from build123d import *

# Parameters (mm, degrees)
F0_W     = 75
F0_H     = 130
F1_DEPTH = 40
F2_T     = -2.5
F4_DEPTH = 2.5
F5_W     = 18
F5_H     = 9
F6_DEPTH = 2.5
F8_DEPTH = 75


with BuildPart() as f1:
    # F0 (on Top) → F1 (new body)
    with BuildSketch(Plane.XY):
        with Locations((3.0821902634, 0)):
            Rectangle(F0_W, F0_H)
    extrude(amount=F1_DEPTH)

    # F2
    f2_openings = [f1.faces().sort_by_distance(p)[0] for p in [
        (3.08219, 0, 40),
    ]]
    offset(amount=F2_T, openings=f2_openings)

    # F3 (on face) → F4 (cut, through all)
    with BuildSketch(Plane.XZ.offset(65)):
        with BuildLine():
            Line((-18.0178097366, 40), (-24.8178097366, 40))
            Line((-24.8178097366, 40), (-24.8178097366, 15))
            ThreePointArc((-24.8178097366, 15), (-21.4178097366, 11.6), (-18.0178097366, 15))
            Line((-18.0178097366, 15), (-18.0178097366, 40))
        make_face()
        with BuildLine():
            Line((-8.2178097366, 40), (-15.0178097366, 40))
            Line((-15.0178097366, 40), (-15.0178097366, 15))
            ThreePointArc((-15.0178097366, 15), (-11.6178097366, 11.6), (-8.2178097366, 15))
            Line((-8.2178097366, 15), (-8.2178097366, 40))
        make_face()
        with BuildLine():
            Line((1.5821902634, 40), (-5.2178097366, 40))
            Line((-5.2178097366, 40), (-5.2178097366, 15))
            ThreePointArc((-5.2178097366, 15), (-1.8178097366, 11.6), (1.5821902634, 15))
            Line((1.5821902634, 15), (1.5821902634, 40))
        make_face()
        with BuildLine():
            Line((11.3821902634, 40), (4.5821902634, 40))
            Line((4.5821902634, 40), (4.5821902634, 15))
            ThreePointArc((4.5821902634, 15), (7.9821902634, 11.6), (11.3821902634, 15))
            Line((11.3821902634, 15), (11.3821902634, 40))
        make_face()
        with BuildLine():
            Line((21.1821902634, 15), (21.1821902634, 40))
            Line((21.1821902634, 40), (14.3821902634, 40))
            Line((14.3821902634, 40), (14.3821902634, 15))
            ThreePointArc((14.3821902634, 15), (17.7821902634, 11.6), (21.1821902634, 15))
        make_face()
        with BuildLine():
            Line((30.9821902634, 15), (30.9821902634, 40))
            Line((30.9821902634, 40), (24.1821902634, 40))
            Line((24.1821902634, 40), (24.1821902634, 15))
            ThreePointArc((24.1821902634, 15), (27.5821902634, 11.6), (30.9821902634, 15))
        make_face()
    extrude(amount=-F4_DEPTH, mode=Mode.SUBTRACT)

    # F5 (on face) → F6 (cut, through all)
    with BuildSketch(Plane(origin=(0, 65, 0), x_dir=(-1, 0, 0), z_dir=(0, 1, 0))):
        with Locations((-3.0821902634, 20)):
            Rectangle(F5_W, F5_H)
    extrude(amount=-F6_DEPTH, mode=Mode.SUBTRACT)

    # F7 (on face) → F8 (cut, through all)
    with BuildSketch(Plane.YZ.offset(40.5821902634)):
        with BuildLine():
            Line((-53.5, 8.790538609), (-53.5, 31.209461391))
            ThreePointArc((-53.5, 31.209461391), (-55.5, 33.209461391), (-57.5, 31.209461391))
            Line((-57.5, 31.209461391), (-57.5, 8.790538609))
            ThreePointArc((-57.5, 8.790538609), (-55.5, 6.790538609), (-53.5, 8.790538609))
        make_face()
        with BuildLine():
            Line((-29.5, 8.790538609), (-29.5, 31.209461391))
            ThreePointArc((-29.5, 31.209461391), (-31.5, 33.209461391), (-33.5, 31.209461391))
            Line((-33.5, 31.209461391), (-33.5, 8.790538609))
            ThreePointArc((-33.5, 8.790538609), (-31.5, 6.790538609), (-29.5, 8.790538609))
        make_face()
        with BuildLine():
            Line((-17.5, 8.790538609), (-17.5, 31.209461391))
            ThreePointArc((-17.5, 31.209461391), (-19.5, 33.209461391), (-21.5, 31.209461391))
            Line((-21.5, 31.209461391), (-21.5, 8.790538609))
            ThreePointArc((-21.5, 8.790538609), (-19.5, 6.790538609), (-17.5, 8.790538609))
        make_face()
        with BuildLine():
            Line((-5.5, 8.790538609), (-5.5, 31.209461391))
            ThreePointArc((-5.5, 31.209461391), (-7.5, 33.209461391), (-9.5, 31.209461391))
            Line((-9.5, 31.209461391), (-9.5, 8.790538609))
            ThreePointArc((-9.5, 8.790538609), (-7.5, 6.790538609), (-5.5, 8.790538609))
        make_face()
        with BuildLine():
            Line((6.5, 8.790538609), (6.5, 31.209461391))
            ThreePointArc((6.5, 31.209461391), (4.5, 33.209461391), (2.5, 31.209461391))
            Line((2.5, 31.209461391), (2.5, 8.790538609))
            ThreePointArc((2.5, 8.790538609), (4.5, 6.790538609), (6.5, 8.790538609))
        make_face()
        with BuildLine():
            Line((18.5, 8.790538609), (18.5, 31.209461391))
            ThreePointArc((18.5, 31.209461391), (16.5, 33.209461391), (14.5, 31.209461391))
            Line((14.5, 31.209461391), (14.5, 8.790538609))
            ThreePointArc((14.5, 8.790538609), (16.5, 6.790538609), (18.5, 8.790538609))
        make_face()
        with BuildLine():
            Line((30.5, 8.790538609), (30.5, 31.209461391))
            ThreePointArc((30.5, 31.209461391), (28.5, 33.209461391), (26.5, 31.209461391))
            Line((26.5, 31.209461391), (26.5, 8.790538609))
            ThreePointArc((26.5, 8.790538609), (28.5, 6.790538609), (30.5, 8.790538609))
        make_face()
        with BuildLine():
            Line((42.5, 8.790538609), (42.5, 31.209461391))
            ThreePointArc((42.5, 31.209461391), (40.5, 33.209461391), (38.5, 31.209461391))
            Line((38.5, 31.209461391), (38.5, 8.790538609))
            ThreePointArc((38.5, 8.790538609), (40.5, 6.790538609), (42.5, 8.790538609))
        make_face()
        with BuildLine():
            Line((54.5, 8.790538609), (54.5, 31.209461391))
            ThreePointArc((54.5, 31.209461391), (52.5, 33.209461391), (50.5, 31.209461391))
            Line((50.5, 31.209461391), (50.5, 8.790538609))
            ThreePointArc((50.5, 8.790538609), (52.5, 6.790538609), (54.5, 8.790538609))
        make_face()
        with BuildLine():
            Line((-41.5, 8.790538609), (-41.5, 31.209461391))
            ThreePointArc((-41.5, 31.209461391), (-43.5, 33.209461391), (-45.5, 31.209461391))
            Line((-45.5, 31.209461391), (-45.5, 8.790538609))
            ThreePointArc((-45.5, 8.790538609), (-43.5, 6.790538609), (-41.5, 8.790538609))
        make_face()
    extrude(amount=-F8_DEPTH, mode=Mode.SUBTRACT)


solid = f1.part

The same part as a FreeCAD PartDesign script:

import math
import FreeCAD as App
import Part
import Sketcher

V = App.Vector
Q = App.Units.Quantity


def faces_at(feature, points):
    """Names of the faces that lie closest to the given points."""
    faces = feature.Shape.Faces
    near = lambda p: min(range(len(faces)), key=lambda i: faces[i].distToShape(Part.Vertex(*p))[0])
    return sorted({f"Face{near(p) + 1}" for p in points})


def add_polygon(sketch, points):
    """Adds a closed chain of lines whose ends are joined by coincident constraints."""
    first, n = sketch.GeometryCount, len(points)
    for a, b in zip(points, points[1:] + points[:1]):
        sketch.addGeometry(Part.LineSegment(App.Vector(*a, 0), App.Vector(*b, 0)), False)
    for i in range(n):
        sketch.addConstraint(Sketcher.Constraint("Coincident", first + i, 2, first + (i + 1) % n, 1))

doc = App.newDocument("Part")
body = doc.addObject("PartDesign::Body", "Body")

# Sketch on XY plane
sketch1 = doc.addObject("Sketcher::SketchObject", "Sketch")
body.addObject(sketch1)
sketch1.AttachmentSupport = (doc.XY_Plane, [""])
sketch1.MapMode = "FlatFace"
add_polygon(sketch1, [(-34, 65), (-34, -65), (41, -65), (41, 65)])  # lines 0-3
sketch1.addConstraint([
    Sketcher.Constraint("Vertical", 0),
    Sketcher.Constraint("Horizontal", 1),
    Sketcher.Constraint("Vertical", 2),
    Sketcher.Constraint("Horizontal", 3),
    Sketcher.Constraint("DistanceX", 1, 1, 1, 2, Q("75 mm")),
    Sketcher.Constraint("DistanceY", 0, 2, 0, 1, Q("130 mm")),
    Sketcher.Constraint("DistanceY", 0, 2, -1, 1, Q("65 mm")),
    Sketcher.Constraint("DistanceX", 0, 2, -1, 1, Q("34.41781 mm")),
])
pad1 = doc.addObject("PartDesign::Pad", "Pad")
body.addObject(pad1)
pad1.Profile = sketch1
pad1.Length = 40
doc.recompute()

thickness = doc.addObject("PartDesign::Thickness", "Thickness")
body.addObject(thickness)
thickness.Base = (pad1, faces_at(pad1, [(3.082, 0, 40)]))
thickness.Value = 2.5
thickness.Reversed = True
thickness.Join = "Arc"

# Sketch on XZ plane
sketch2 = doc.addObject("Sketcher::SketchObject", "Sketch001")
body.addObject(sketch2)
sketch2.AttachmentSupport = (doc.XZ_Plane, [""])
sketch2.MapMode = "FlatFace"
sketch2.AttachmentOffset = App.Placement(V(0, 0, 65), App.Rotation())
sketch2.addGeometry([
    Part.LineSegment(V(-18, 40, 0), V(-24.8, 40, 0)),  # 0
    Part.LineSegment(V(-24.8, 40, 0), V(-24.8, 15, 0)),  # 1
    Part.ArcOfCircle(Part.Circle(V(-21.4, 15, 0), V(0, 0, 1), 3.4), math.radians(180), math.radians(360)),  # 2
    Part.LineSegment(V(-18, 15, 0), V(-18, 40, 0)),  # 3
    Part.LineSegment(V(-8.2, 40, 0), V(-15, 40, 0)),  # 4
    Part.LineSegment(V(-15, 40, 0), V(-15, 15, 0)),  # 5
    Part.ArcOfCircle(Part.Circle(V(-11.6, 15, 0), V(0, 0, 1), 3.4), math.radians(180), math.radians(360)),  # 6
    Part.LineSegment(V(-8.2, 15, 0), V(-8.2, 40, 0)),  # 7
    Part.LineSegment(V(1.6, 40, 0), V(-5.2, 40, 0)),  # 8
    Part.LineSegment(V(-5.2, 40, 0), V(-5.2, 15, 0)),  # 9
    Part.ArcOfCircle(Part.Circle(V(-1.8, 15, 0), V(0, 0, 1), 3.4), math.radians(180), math.radians(360)),  # 10
    Part.LineSegment(V(1.6, 15, 0), V(1.6, 40, 0)),  # 11
    Part.LineSegment(V(11.4, 40, 0), V(4.6, 40, 0)),  # 12
    Part.LineSegment(V(4.6, 40, 0), V(4.6, 15, 0)),  # 13
    Part.ArcOfCircle(Part.Circle(V(8, 15, 0), V(0, 0, 1), 3.4), math.radians(180), math.radians(360)),  # 14
    Part.LineSegment(V(11.4, 15, 0), V(11.4, 40, 0)),  # 15
    Part.LineSegment(V(21.2, 15, 0), V(21.2, 40, 0)),  # 16
    Part.LineSegment(V(21.2, 40, 0), V(14.4, 40, 0)),  # 17
    Part.LineSegment(V(14.4, 40, 0), V(14.4, 15, 0)),  # 18
    Part.ArcOfCircle(Part.Circle(V(17.8, 15, 0), V(0, 0, 1), 3.4), math.radians(180), math.radians(360)),  # 19
    Part.LineSegment(V(31, 15, 0), V(31, 40, 0)),  # 20
    Part.LineSegment(V(31, 40, 0), V(24.2, 40, 0)),  # 21
    Part.LineSegment(V(24.2, 40, 0), V(24.2, 15, 0)),  # 22
    Part.ArcOfCircle(Part.Circle(V(27.6, 15, 0), V(0, 0, 1), 3.4), math.radians(180), math.radians(360)),  # 23
], False)
sketch2.addConstraint([
    Sketcher.Constraint("Coincident", 0, 2, 1, 1),
    Sketcher.Constraint("Tangent", 1, 2, 2, 1),
    Sketcher.Constraint("Tangent", 2, 2, 3, 1),
    Sketcher.Constraint("Coincident", 3, 2, 0, 1),
    Sketcher.Constraint("Coincident", 4, 2, 5, 1),
    Sketcher.Constraint("Tangent", 5, 2, 6, 1),
    Sketcher.Constraint("Tangent", 6, 2, 7, 1),
    Sketcher.Constraint("Coincident", 7, 2, 4, 1),
    Sketcher.Constraint("Coincident", 8, 2, 9, 1),
    Sketcher.Constraint("Tangent", 9, 2, 10, 1),
    Sketcher.Constraint("Tangent", 10, 2, 11, 1),
    Sketcher.Constraint("Coincident", 11, 2, 8, 1),
    Sketcher.Constraint("Coincident", 12, 2, 13, 1),
    Sketcher.Constraint("Tangent", 13, 2, 14, 1),
    Sketcher.Constraint("Tangent", 14, 2, 15, 1),
    Sketcher.Constraint("Coincident", 15, 2, 12, 1),
    Sketcher.Constraint("Coincident", 16, 2, 17, 1),
    Sketcher.Constraint("Coincident", 17, 2, 18, 1),
    Sketcher.Constraint("Tangent", 18, 2, 19, 1),
    Sketcher.Constraint("Tangent", 19, 2, 16, 1),
    Sketcher.Constraint("Coincident", 20, 2, 21, 1),
    Sketcher.Constraint("Coincident", 21, 2, 22, 1),
    Sketcher.Constraint("Tangent", 22, 2, 23, 1),
    Sketcher.Constraint("Tangent", 23, 2, 20, 1),
    Sketcher.Constraint("Horizontal", 0),
    Sketcher.Constraint("Vertical", 1),
    Sketcher.Constraint("Vertical", 3),
    Sketcher.Constraint("Horizontal", 4),
    Sketcher.Constraint("Vertical", 5),
    Sketcher.Constraint("Vertical", 7),
    Sketcher.Constraint("Horizontal", 8),
    Sketcher.Constraint("Vertical", 9),
    Sketcher.Constraint("Vertical", 11),
    Sketcher.Constraint("Horizontal", 12),
    Sketcher.Constraint("Vertical", 13),
    Sketcher.Constraint("Vertical", 15),
    Sketcher.Constraint("Vertical", 16),
    Sketcher.Constraint("Horizontal", 17),
    Sketcher.Constraint("Vertical", 18),
    Sketcher.Constraint("Vertical", 20),
    Sketcher.Constraint("Horizontal", 21),
    Sketcher.Constraint("Vertical", 22),
    Sketcher.Constraint("Equal", 2, 6),
    Sketcher.Constraint("Equal", 6, 10),
    Sketcher.Constraint("Equal", 10, 14),
    Sketcher.Constraint("Equal", 14, 19),
    Sketcher.Constraint("Equal", 19, 23),
    Sketcher.Constraint("Horizontal", 2, 3, 6, 3),
    Sketcher.Constraint("Horizontal", 6, 3, 10, 3),
    Sketcher.Constraint("Horizontal", 10, 3, 14, 3),
    Sketcher.Constraint("Horizontal", 14, 3, 19, 3),
    Sketcher.Constraint("Horizontal", 19, 3, 23, 3),
    Sketcher.Constraint("Horizontal", 3, 2, 4, 2),
    Sketcher.Constraint("Horizontal", 7, 2, 8, 2),
    Sketcher.Constraint("Horizontal", 11, 2, 12, 2),
    Sketcher.Constraint("Horizontal", 15, 2, 16, 2),
    Sketcher.Constraint("Horizontal", 17, 2, 20, 2),
    Sketcher.Constraint("Radius", 2, Q("3.4 mm")),
    Sketcher.Constraint("DistanceY", 1, 2, 1, 1, Q("25 mm")),
    Sketcher.Constraint("DistanceY", -1, 1, 2, 3, Q("15 mm")),
    Sketcher.Constraint("DistanceX", 2, 3, 23, 3, Q("49 mm")),
    Sketcher.Constraint("DistanceX", 0, 2, 10, 3, Q("23 mm")),
    Sketcher.Constraint("DistanceX", 3, 2, 4, 2, Q("3 mm")),
    Sketcher.Constraint("DistanceX", 11, 2, 12, 2, Q("3 mm")),
    Sketcher.Constraint("DistanceX", 15, 2, 17, 2, Q("3 mm")),
    Sketcher.Constraint("DistanceX", 2, 3, -1, 1, Q("21.41781 mm")),
])
pocket1 = doc.addObject("PartDesign::Pocket", "Pocket")
body.addObject(pocket1)
pocket1.Profile = sketch2
pocket1.Length = 2.5

# Sketch on XZ plane
sketch3 = doc.addObject("Sketcher::SketchObject", "Sketch002")
body.addObject(sketch3)
sketch3.AttachmentSupport = (doc.XZ_Plane, [""])
sketch3.MapMode = "FlatFace"
sketch3.AttachmentOffset = App.Placement(V(0, 0, -65), App.Rotation())
add_polygon(sketch3, [(12, 24), (12, 16), (-6, 16), (-6, 24)])  # lines 0-3
sketch3.addConstraint([
    Sketcher.Constraint("Vertical", 0),
    Sketcher.Constraint("Horizontal", 1),
    Sketcher.Constraint("Vertical", 2),
    Sketcher.Constraint("Horizontal", 3),
    Sketcher.Constraint("DistanceX", 1, 2, 1, 1, Q("18 mm")),
    Sketcher.Constraint("DistanceY", 0, 2, 0, 1, Q("9 mm")),
    Sketcher.Constraint("DistanceY", -1, 1, 0, 2, Q("15.5 mm")),
    Sketcher.Constraint("DistanceX", -1, 1, 0, 2, Q("12.08219 mm")),
])
pocket2 = doc.addObject("PartDesign::Pocket", "Pocket001")
body.addObject(pocket2)
pocket2.Profile = sketch3
pocket2.Length = 2.5
pocket2.Reversed = True

# Sketch on YZ plane
sketch4 = doc.addObject("Sketcher::SketchObject", "Sketch003")
body.addObject(sketch4)
sketch4.AttachmentSupport = (doc.YZ_Plane, [""])
sketch4.MapMode = "FlatFace"
sketch4.AttachmentOffset = App.Placement(V(0, 0, 40.58219), App.Rotation())
sketch4.addGeometry([
    Part.LineSegment(V(-53.5, 8.8, 0), V(-53.5, 31.2, 0)),  # 0
    Part.ArcOfCircle(Part.Circle(V(-55.5, 31.2, 0), V(0, 0, 1), 2), math.radians(0), math.radians(180)),  # 1
    Part.LineSegment(V(-57.5, 31.2, 0), V(-57.5, 8.8, 0)),  # 2
    Part.ArcOfCircle(Part.Circle(V(-55.5, 8.8, 0), V(0, 0, 1), 2), math.radians(180), math.radians(360)),  # 3
    Part.LineSegment(V(-29.5, 8.8, 0), V(-29.5, 31.2, 0)),  # 4
    Part.ArcOfCircle(Part.Circle(V(-31.5, 31.2, 0), V(0, 0, 1), 2), math.radians(0), math.radians(180)),  # 5
    Part.LineSegment(V(-33.5, 31.2, 0), V(-33.5, 8.8, 0)),  # 6
    Part.ArcOfCircle(Part.Circle(V(-31.5, 8.8, 0), V(0, 0, 1), 2), math.radians(180), math.radians(360)),  # 7
    Part.LineSegment(V(-17.5, 8.8, 0), V(-17.5, 31.2, 0)),  # 8
    Part.ArcOfCircle(Part.Circle(V(-19.5, 31.2, 0), V(0, 0, 1), 2), math.radians(0), math.radians(180)),  # 9
    Part.LineSegment(V(-21.5, 31.2, 0), V(-21.5, 8.8, 0)),  # 10
    Part.ArcOfCircle(Part.Circle(V(-19.5, 8.8, 0), V(0, 0, 1), 2), math.radians(180), math.radians(360)),  # 11
    Part.LineSegment(V(-5.5, 8.8, 0), V(-5.5, 31.2, 0)),  # 12
    Part.ArcOfCircle(Part.Circle(V(-7.5, 31.2, 0), V(0, 0, 1), 2), math.radians(0), math.radians(180)),  # 13
    Part.LineSegment(V(-9.5, 31.2, 0), V(-9.5, 8.8, 0)),  # 14
    Part.ArcOfCircle(Part.Circle(V(-7.5, 8.8, 0), V(0, 0, 1), 2), math.radians(180), math.radians(360)),  # 15
    Part.LineSegment(V(6.5, 8.8, 0), V(6.5, 31.2, 0)),  # 16
    Part.ArcOfCircle(Part.Circle(V(4.5, 31.2, 0), V(0, 0, 1), 2), math.radians(0), math.radians(180)),  # 17
    Part.LineSegment(V(2.5, 31.2, 0), V(2.5, 8.8, 0)),  # 18
    Part.ArcOfCircle(Part.Circle(V(4.5, 8.8, 0), V(0, 0, 1), 2), math.radians(180), math.radians(360)),  # 19
    Part.LineSegment(V(18.5, 8.8, 0), V(18.5, 31.2, 0)),  # 20
    Part.ArcOfCircle(Part.Circle(V(16.5, 31.2, 0), V(0, 0, 1), 2), math.radians(0), math.radians(180)),  # 21
    Part.LineSegment(V(14.5, 31.2, 0), V(14.5, 8.8, 0)),  # 22
    Part.ArcOfCircle(Part.Circle(V(16.5, 8.8, 0), V(0, 0, 1), 2), math.radians(180), math.radians(360)),  # 23
    Part.LineSegment(V(30.5, 8.8, 0), V(30.5, 31.2, 0)),  # 24
    Part.ArcOfCircle(Part.Circle(V(28.5, 31.2, 0), V(0, 0, 1), 2), math.radians(0), math.radians(180)),  # 25
    Part.LineSegment(V(26.5, 31.2, 0), V(26.5, 8.8, 0)),  # 26
    Part.ArcOfCircle(Part.Circle(V(28.5, 8.8, 0), V(0, 0, 1), 2), math.radians(180), math.radians(360)),  # 27
    Part.LineSegment(V(42.5, 8.8, 0), V(42.5, 31.2, 0)),  # 28
    Part.ArcOfCircle(Part.Circle(V(40.5, 31.2, 0), V(0, 0, 1), 2), math.radians(0), math.radians(180)),  # 29
    Part.LineSegment(V(38.5, 31.2, 0), V(38.5, 8.8, 0)),  # 30
    Part.ArcOfCircle(Part.Circle(V(40.5, 8.8, 0), V(0, 0, 1), 2), math.radians(180), math.radians(360)),  # 31
    Part.LineSegment(V(54.5, 8.8, 0), V(54.5, 31.2, 0)),  # 32
    Part.ArcOfCircle(Part.Circle(V(52.5, 31.2, 0), V(0, 0, 1), 2), math.radians(0), math.radians(180)),  # 33
    Part.LineSegment(V(50.5, 31.2, 0), V(50.5, 8.8, 0)),  # 34
    Part.ArcOfCircle(Part.Circle(V(52.5, 8.8, 0), V(0, 0, 1), 2), math.radians(180), math.radians(360)),  # 35
    Part.LineSegment(V(-41.5, 8.8, 0), V(-41.5, 31.2, 0)),  # 36
    Part.ArcOfCircle(Part.Circle(V(-43.5, 31.2, 0), V(0, 0, 1), 2), math.radians(0), math.radians(180)),  # 37
    Part.LineSegment(V(-45.5, 31.2, 0), V(-45.5, 8.8, 0)),  # 38
    Part.ArcOfCircle(Part.Circle(V(-43.5, 8.8, 0), V(0, 0, 1), 2), math.radians(180), math.radians(360)),  # 39
], False)
sketch4.addConstraint([
    Sketcher.Constraint("Tangent", 0, 2, 1, 1),
    Sketcher.Constraint("Tangent", 1, 2, 2, 1),
    Sketcher.Constraint("Tangent", 2, 2, 3, 1),
    Sketcher.Constraint("Tangent", 3, 2, 0, 1),
    Sketcher.Constraint("Tangent", 4, 2, 5, 1),
    Sketcher.Constraint("Tangent", 5, 2, 6, 1),
    Sketcher.Constraint("Tangent", 6, 2, 7, 1),
    Sketcher.Constraint("Tangent", 7, 2, 4, 1),
    Sketcher.Constraint("Tangent", 8, 2, 9, 1),
    Sketcher.Constraint("Tangent", 9, 2, 10, 1),
    Sketcher.Constraint("Tangent", 10, 2, 11, 1),
    Sketcher.Constraint("Tangent", 11, 2, 8, 1),
    Sketcher.Constraint("Tangent", 12, 2, 13, 1),
    Sketcher.Constraint("Tangent", 13, 2, 14, 1),
    Sketcher.Constraint("Tangent", 14, 2, 15, 1),
    Sketcher.Constraint("Tangent", 15, 2, 12, 1),
    Sketcher.Constraint("Tangent", 16, 2, 17, 1),
    Sketcher.Constraint("Tangent", 17, 2, 18, 1),
    Sketcher.Constraint("Tangent", 18, 2, 19, 1),
    Sketcher.Constraint("Tangent", 19, 2, 16, 1),
    Sketcher.Constraint("Tangent", 20, 2, 21, 1),
    Sketcher.Constraint("Tangent", 21, 2, 22, 1),
    Sketcher.Constraint("Tangent", 22, 2, 23, 1),
    Sketcher.Constraint("Tangent", 23, 2, 20, 1),
    Sketcher.Constraint("Tangent", 24, 2, 25, 1),
    Sketcher.Constraint("Tangent", 25, 2, 26, 1),
    Sketcher.Constraint("Tangent", 26, 2, 27, 1),
    Sketcher.Constraint("Tangent", 27, 2, 24, 1),
    Sketcher.Constraint("Tangent", 28, 2, 29, 1),
    Sketcher.Constraint("Tangent", 29, 2, 30, 1),
    Sketcher.Constraint("Tangent", 30, 2, 31, 1),
    Sketcher.Constraint("Tangent", 31, 2, 28, 1),
    Sketcher.Constraint("Tangent", 32, 2, 33, 1),
    Sketcher.Constraint("Tangent", 33, 2, 34, 1),
    Sketcher.Constraint("Tangent", 34, 2, 35, 1),
    Sketcher.Constraint("Tangent", 35, 2, 32, 1),
    Sketcher.Constraint("Tangent", 36, 2, 37, 1),
    Sketcher.Constraint("Tangent", 37, 2, 38, 1),
    Sketcher.Constraint("Tangent", 38, 2, 39, 1),
    Sketcher.Constraint("Tangent", 39, 2, 36, 1),
    Sketcher.Constraint("Vertical", 0),
    Sketcher.Constraint("Vertical", 2),
    Sketcher.Constraint("Vertical", 4),
    Sketcher.Constraint("Vertical", 6),
    Sketcher.Constraint("Vertical", 8),
    Sketcher.Constraint("Vertical", 10),
    Sketcher.Constraint("Vertical", 12),
    Sketcher.Constraint("Vertical", 14),
    Sketcher.Constraint("Vertical", 16),
    Sketcher.Constraint("Vertical", 18),
    Sketcher.Constraint("Vertical", 20),
    Sketcher.Constraint("Vertical", 22),
    Sketcher.Constraint("Vertical", 24),
    Sketcher.Constraint("Vertical", 26),
    Sketcher.Constraint("Vertical", 28),
    Sketcher.Constraint("Vertical", 30),
    Sketcher.Constraint("Vertical", 32),
    Sketcher.Constraint("Vertical", 34),
    Sketcher.Constraint("Vertical", 36),
    Sketcher.Constraint("Vertical", 38),
    Sketcher.Constraint("Equal", 3, 5),
    Sketcher.Constraint("Equal", 7, 9),
    Sketcher.Constraint("Equal", 11, 13),
    Sketcher.Constraint("Equal", 15, 17),
    Sketcher.Constraint("Equal", 19, 21),
    Sketcher.Constraint("Equal", 23, 25),
    Sketcher.Constraint("Equal", 27, 29),
    Sketcher.Constraint("Equal", 31, 33),
    Sketcher.Constraint("Equal", 35, 37),
    Sketcher.Constraint("Horizontal", 1, 3, 5, 3),
    Sketcher.Constraint("Horizontal", 3, 3, 7, 3),
    Sketcher.Constraint("Horizontal", 5, 3, 9, 3),
    Sketcher.Constraint("Horizontal", 7, 3, 11, 3),
    Sketcher.Constraint("Horizontal", 9, 3, 13, 3),
    Sketcher.Constraint("Horizontal", 11, 3, 15, 3),
    Sketcher.Constraint("Horizontal", 13, 3, 17, 3),
    Sketcher.Constraint("Horizontal", 15, 3, 19, 3),
    Sketcher.Constraint("Horizontal", 17, 3, 21, 3),
    Sketcher.Constraint("Horizontal", 19, 3, 23, 3),
    Sketcher.Constraint("Horizontal", 21, 3, 25, 3),
    Sketcher.Constraint("Horizontal", 23, 3, 27, 3),
    Sketcher.Constraint("Horizontal", 25, 3, 29, 3),
    Sketcher.Constraint("Horizontal", 27, 3, 31, 3),
    Sketcher.Constraint("Horizontal", 29, 3, 33, 3),
    Sketcher.Constraint("Horizontal", 31, 3, 35, 3),
    Sketcher.Constraint("Horizontal", 33, 3, 37, 3),
    Sketcher.Constraint("Horizontal", 35, 3, 39, 3),
    Sketcher.Constraint("Radius", 1, Q("2 mm")),
    Sketcher.Constraint("DistanceX", 1, 3, 5, 3, Q("24 mm")),
    Sketcher.Constraint("DistanceX", 5, 3, 9, 3, Q("12 mm")),
    Sketcher.Constraint("DistanceX", 9, 3, 13, 3, Q("12 mm")),
    Sketcher.Constraint("DistanceX", 13, 3, 17, 3, Q("12 mm")),
    Sketcher.Constraint("DistanceX", 17, 3, 21, 3, Q("12 mm")),
    Sketcher.Constraint("DistanceX", 21, 3, 25, 3, Q("12 mm")),
    Sketcher.Constraint("DistanceX", 25, 3, 29, 3, Q("12 mm")),
    Sketcher.Constraint("DistanceX", 29, 3, 33, 3, Q("12 mm")),
    Sketcher.Constraint("DistanceX", 1, 3, 37, 3, Q("12 mm")),
    Sketcher.Constraint("DistanceX", 1, 3, -1, 1, Q("55.5 mm")),
    Sketcher.Constraint("DistanceY", 0, 1, 0, 2, Q("22.418923 mm")),
    Sketcher.Constraint("DistanceY", -1, 1, 1, 3, Q("31.209461 mm")),
])
pocket3 = doc.addObject("PartDesign::Pocket", "Pocket002")
body.addObject(pocket3)
pocket3.Profile = sketch4
pocket3.Type = "ThroughAll"

doc.recompute()
